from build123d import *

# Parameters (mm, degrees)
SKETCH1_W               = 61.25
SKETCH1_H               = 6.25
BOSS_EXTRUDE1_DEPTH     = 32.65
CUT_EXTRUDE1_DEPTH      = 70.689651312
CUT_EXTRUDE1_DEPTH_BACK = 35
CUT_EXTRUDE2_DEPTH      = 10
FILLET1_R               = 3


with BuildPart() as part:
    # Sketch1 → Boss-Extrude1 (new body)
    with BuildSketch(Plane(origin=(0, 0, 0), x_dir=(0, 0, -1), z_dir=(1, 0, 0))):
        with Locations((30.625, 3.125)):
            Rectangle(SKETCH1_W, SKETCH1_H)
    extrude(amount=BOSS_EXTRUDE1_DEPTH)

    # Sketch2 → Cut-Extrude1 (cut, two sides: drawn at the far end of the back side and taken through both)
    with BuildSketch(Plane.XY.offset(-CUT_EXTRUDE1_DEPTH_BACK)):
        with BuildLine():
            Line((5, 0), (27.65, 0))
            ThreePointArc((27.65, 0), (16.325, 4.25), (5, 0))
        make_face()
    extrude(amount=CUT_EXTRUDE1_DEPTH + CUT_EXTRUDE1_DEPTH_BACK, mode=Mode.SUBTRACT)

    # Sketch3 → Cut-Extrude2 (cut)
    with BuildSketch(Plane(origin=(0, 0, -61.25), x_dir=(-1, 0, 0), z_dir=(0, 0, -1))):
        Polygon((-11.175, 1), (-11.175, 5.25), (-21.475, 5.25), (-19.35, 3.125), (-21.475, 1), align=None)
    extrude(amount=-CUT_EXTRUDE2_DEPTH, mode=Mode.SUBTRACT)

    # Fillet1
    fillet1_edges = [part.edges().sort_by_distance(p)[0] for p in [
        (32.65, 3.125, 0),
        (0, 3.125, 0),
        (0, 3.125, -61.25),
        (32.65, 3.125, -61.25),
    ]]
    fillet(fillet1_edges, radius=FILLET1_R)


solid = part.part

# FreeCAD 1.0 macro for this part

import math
import FreeCAD as App
import Part
import Sketcher
from FreeCAD import Vector
Q = App.Units.Quantity


def edges_at(feature, points):
    """Names of the edges that pass closest to the given points."""
    edges = feature.Shape.Edges
    near = lambda p: min(range(len(edges)), key=lambda i: edges[i].distToShape(Part.Vertex(*p))[0])
    return sorted({f"Edge{near(p) + 1}" for p in points})


def add_polygon(sketch, points):
    """Adds a closed chain of lines whose ends are joined by coincident constraints."""
    first, n = sketch.GeometryCount, len(points)
    for a, b in zip(points, points[1:] + points[:1]):
        sketch.addGeometry(Part.LineSegment(App.Vector(*a, 0), App.Vector(*b, 0)), False)
    for i in range(n):
        sketch.addConstraint(Sketcher.Constraint("Coincident", first + i, 2, first + (i + 1) % n, 1))

doc = App.newDocument("Part")
body = doc.addObject("PartDesign::Body", "Body")

# Sketch on YZ plane
sketch1 = doc.addObject("Sketcher::SketchObject", "Sketch")
body.addObject(sketch1)
sketch1.AttachmentSupport = (doc.YZ_Plane, [""])
sketch1.MapMode = "FlatFace"
add_polygon(sketch1, [(6.25, 0), (0, 0), (0, -61.25), (6.25, -61.25)])  # lines 0-3
sketch1.addConstraint(Sketcher.Constraint("Horizontal", 0))
sketch1.addConstraint(Sketcher.Constraint("Vertical", 1))
sketch1.addConstraint(Sketcher.Constraint("Horizontal", 2))
sketch1.addConstraint(Sketcher.Constraint("Vertical", 3))
sketch1.addConstraint(Sketcher.Constraint("Coincident", 0, 2, -1, 1))
sketch1.addConstraint(Sketcher.Constraint("DistanceX", 0, 2, 0, 1, Q("6.25 mm")))
sketch1.addConstraint(Sketcher.Constraint("DistanceY", 1, 2, 1, 1, Q("61.25 mm")))
pad1 = doc.addObject("PartDesign::Pad", "Pad")
body.addObject(pad1)
pad1.Profile = sketch1
pad1.Length = 32.65

# Sketch on XY plane
sketch2 = doc.addObject("Sketcher::SketchObject", "Sketch001")
body.addObject(sketch2)
sketch2.AttachmentSupport = (doc.XY_Plane, [""])
sketch2.MapMode = "FlatFace"
sketch2.addGeometry(Part.LineSegment(Vector(5, 0, 0), Vector(27.65, 0, 0)), False)
sketch2.addGeometry(Part.ArcOfCircle(Part.Circle(Vector(16.325, -12.963897, 0), Vector(0, 0, 1), 17.213897), math.radians(48.86019), math.radians(131.13981)), False)
sketch2.addConstraint(Sketcher.Constraint("Coincident", 0, 1, 1, 2))
sketch2.addConstraint(Sketcher.Constraint("Coincident", 1, 1, 0, 2))
sketch2.addConstraint(Sketcher.Constraint("Horizontal", 0))
sketch2.addConstraint(Sketcher.Constraint("PointOnObject", 0, 1, -1))
sketch2.addConstraint(Sketcher.Constraint("DistanceX", -1, 1, 0, 1, Q("5 mm")))
sketch2.addConstraint(Sketcher.Constraint("DistanceX", 0, 1, 0, 2, Q("22.65 mm")))
sketch2.addConstraint(Sketcher.Constraint("Radius", 1, Q("17.213897 mm")))
pocket1 = doc.addObject("PartDesign::Pocket", "Pocket")
body.addObject(pocket1)
pocket1.Profile = sketch2
pocket1.Type = "TwoLengths"
pocket1.Length = 70.689651
pocket1.Length2 = 35
pocket1.Reversed = True

# Sketch on XY plane
sketch3 = doc.addObject("Sketcher::SketchObject", "Sketch002")
body.addObject(sketch3)
sketch3.AttachmentSupport = (doc.XY_Plane, [""])
sketch3.MapMode = "FlatFace"
sketch3.AttachmentOffset = App.Placement(Vector(0, 0, -61.25), App.Rotation())
add_polygon(sketch3, [(11.175, 1), (11.175, 5.25), (21.475, 5.25), (19.35, 3.125), (21.475, 1)])  # lines 0-4
sketch3.addConstraint(Sketcher.Constraint("Vertical", 0))
sketch3.addConstraint(Sketcher.Constraint("Horizontal", 1))
sketch3.addConstraint(Sketcher.Constraint("Horizontal", 4))
sketch3.addConstraint(Sketcher.Constraint("Perpendicular", 2, 3))
sketch3.addConstraint(Sketcher.Constraint("Vertical", 1, 2, 3, 2))
sketch3.addConstraint(Sketcher.Constraint("Equal", 2, 3))
sketch3.addConstraint(Sketcher.Constraint("DistanceX", 1, 1, 1, 2, Q("10.3 mm")))
sketch3.addConstraint(Sketcher.Constraint("DistanceY", -1, 1, 3, 2, Q("1 mm")))
sketch3.addConstraint(Sketcher.Constraint("DistanceY", 0, 1, 0, 2, Q("4.25 mm")))
sketch3.addConstraint(Sketcher.Constraint("DistanceX", -1, 1, 2, 2, Q("19.35 mm")))
pocket2 = doc.addObject("PartDesign::Pocket", "Pocket001")
body.addObject(pocket2)
pocket2.Profile = sketch3
pocket2.Length = 10
pocket2.Reversed = True
doc.recompute()

fillet = doc.addObject("PartDesign::Fillet", "Fillet")
body.addObject(fillet)
fillet.Base = (pocket2, edges_at(pocket2, [
    (32.65, 3.125, 0),
    (0, 3.125, 0),
    (0, 3.125, -61.25),
    (32.65, 3.125, -61.25),
]))
fillet.Radius = 3

doc.recompute()
